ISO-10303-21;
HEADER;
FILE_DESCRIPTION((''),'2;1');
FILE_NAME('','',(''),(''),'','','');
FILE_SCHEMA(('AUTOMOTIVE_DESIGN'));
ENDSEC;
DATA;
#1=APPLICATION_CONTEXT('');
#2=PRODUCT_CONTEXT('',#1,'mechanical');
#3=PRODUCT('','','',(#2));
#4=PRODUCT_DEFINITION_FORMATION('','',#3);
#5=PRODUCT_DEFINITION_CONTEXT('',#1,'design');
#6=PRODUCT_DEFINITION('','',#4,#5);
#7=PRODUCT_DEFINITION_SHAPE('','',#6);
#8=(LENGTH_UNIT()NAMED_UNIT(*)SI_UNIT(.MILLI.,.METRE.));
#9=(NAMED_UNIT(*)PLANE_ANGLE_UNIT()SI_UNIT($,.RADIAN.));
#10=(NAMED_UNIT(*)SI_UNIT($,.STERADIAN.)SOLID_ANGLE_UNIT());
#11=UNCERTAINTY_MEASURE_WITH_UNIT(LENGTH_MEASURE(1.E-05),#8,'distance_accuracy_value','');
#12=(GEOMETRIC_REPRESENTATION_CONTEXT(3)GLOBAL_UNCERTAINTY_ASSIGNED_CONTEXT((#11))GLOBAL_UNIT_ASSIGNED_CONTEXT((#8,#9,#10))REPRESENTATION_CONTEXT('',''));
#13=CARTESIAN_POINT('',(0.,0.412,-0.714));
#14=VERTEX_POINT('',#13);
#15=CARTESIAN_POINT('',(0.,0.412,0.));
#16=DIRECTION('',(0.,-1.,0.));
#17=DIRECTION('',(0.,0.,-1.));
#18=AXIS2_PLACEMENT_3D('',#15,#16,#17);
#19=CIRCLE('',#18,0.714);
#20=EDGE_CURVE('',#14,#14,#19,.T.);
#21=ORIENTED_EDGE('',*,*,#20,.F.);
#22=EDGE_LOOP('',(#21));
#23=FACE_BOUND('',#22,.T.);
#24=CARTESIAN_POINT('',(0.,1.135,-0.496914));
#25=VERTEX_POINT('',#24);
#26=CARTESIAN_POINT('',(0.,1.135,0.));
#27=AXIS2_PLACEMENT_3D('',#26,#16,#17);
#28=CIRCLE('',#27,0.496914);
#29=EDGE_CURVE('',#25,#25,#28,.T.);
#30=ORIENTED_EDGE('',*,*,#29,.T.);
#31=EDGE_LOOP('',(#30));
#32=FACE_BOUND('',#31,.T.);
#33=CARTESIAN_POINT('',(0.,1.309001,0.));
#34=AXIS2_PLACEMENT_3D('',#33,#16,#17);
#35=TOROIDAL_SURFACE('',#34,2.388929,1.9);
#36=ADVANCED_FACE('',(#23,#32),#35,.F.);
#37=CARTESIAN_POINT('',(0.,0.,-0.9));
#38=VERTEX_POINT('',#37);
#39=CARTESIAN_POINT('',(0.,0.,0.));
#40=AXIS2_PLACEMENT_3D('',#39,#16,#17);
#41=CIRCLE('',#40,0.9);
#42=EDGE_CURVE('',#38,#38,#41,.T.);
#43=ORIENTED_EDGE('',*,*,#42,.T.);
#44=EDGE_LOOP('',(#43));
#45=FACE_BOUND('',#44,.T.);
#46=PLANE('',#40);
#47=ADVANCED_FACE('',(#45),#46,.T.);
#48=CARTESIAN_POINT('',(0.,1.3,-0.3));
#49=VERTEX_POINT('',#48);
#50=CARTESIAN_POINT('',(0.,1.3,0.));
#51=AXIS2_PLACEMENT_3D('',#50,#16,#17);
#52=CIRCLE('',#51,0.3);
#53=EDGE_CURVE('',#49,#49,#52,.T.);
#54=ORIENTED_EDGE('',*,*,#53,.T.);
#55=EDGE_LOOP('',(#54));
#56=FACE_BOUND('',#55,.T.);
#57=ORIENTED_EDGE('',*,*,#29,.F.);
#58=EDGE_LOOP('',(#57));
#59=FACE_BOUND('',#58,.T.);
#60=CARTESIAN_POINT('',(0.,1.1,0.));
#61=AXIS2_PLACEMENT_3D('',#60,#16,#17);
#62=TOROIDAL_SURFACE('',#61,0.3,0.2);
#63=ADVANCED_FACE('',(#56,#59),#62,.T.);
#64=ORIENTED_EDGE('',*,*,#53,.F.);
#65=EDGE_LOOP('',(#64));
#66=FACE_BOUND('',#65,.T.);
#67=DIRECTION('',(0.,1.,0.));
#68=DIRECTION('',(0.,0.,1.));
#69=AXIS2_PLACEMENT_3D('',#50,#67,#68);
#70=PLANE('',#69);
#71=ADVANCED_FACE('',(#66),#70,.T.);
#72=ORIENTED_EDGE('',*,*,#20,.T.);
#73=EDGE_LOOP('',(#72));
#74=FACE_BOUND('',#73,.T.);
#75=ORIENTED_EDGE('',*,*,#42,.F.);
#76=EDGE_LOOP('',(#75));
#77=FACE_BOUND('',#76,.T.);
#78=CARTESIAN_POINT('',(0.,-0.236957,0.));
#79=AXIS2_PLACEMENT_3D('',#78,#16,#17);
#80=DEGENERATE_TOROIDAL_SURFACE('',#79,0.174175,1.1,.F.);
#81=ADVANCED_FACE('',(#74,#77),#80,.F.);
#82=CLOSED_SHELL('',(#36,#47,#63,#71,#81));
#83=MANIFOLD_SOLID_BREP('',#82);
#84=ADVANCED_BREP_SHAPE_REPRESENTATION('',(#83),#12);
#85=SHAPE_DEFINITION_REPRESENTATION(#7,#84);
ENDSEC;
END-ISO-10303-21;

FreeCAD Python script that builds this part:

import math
import FreeCAD as App
import Part
import Sketcher
from FreeCAD import Vector
Q = App.Units.Quantity

doc = App.newDocument("Part")
params = doc.addObject("Spreadsheet::Sheet", "Params")
for row, (alias, value) in enumerate([
    ("sketch1_radius", "1.1 mm"),
    ("sketch1_radius2", "1.9 mm"),
    ("sketch1_radius3", "0.2 mm"),
    ("sketch1_width", "0.9 mm"),
    ("sketch1_width2", "0.3 mm"),
    ("revolution_angle", "360 deg"),
], start=1):
    params.set(f"A{row}", alias)
    params.set(f"B{row}", "=" + value)
    params.setAlias(f"B{row}", alias)

body = doc.addObject("PartDesign::Body", "Body")

sketch1 = body.newObject("Sketcher::SketchObject", "Sketch")
sketch1.AttachmentSupport = (doc.getObject("XY_Plane"), [""])
sketch1.MapMode = "FlatFace"
sketch1.addGeometry(Part.LineSegment(Vector(0, 0, 0), Vector(0.9, 0, 0)), False)
sketch1.addGeometry(Part.ArcOfCircle(Part.Circle(Vector(-0.17, -0.24, 0), Vector(0, 0, 1), 1.1), math.radians(12), math.radians(36)), False)
sketch1.addGeometry(Part.ArcOfCircle(Part.Circle(Vector(2.39, 1.31, 0), Vector(0, 0, 1), 1.9), math.radians(-175), math.radians(-152)), False)
sketch1.addGeometry(Part.ArcOfCircle(Part.Circle(Vector(0.3, 1.1, 0), Vector(0, 0, 1), 0.2), math.radians(10), math.radians(90)), False)
sketch1.addGeometry(Part.LineSegment(Vector(0.3, 1.3, 0), Vector(0, 1.3, 0)), False)
sketch1.addGeometry(Part.LineSegment(Vector(0, 1.3, 0), Vector(0, 0, 0)), False)
sketch1.addConstraint(Sketcher.Constraint("Coincident", 0, 2, 1, 1))
sketch1.addConstraint(Sketcher.Constraint("Coincident", 1, 2, 2, 2))
sketch1.addConstraint(Sketcher.Constraint("Coincident", 2, 1, 3, 1))
sketch1.addConstraint(Sketcher.Constraint("Tangent", 3, 2, 4, 1))
sketch1.addConstraint(Sketcher.Constraint("Coincident", 4, 2, 5, 1))
sketch1.addConstraint(Sketcher.Constraint("Coincident", 5, 2, 0, 1))
sketch1.addConstraint(Sketcher.Constraint("Horizontal", 0))
sketch1.addConstraint(Sketcher.Constraint("Horizontal", 4))
sketch1.addConstraint(Sketcher.Constraint("Vertical", 5))
sketch1.addConstraint(Sketcher.Constraint("Coincident", 5, 2, -1, 1))
sketch1.addConstraint(Sketcher.Constraint("Radius", 1, Q("1.1 mm")))
sketch1.addConstraint(Sketcher.Constraint("Radius", 2, Q("1.9 mm")))
sketch1.addConstraint(Sketcher.Constraint("Radius", 3, Q("0.2 mm")))
sketch1.addConstraint(Sketcher.Constraint("DistanceX", 0, 1, 0, 2, Q("0.9 mm")))
sketch1.addConstraint(Sketcher.Constraint("DistanceX", 4, 2, 4, 1, Q("0.3 mm")))
sketch1.addConstraint(Sketcher.Constraint("DistanceY", 5, 2, 5, 1, Q("1.3 mm")))
sketch1.addConstraint(Sketcher.Constraint("DistanceY", -1, 1, 2, 3, Q("1.309001 mm")))
sketch1.addConstraint(Sketcher.Constraint("DistanceX", -1, 1, 1, 2, Q("0.714 mm")))
sketch1.addConstraint(Sketcher.Constraint("DistanceY", -1, 1, 1, 2, Q("0.412 mm")))
sketch1.setExpression("Constraints[10]", "Params.sketch1_radius")
sketch1.setExpression("Constraints[11]", "Params.sketch1_radius2")
sketch1.setExpression("Constraints[12]", "Params.sketch1_radius3")
sketch1.setExpression("Constraints[13]", "Params.sketch1_width")
sketch1.setExpression("Constraints[14]", "Params.sketch1_width2")
revolution = body.newObject("PartDesign::Revolution", "Revolution")
revolution.Profile = sketch1
revolution.ReferenceAxis = (sketch1, ["V_Axis"])
revolution.setExpression("Angle", "Params.revolution_angle")

doc.recompute()
